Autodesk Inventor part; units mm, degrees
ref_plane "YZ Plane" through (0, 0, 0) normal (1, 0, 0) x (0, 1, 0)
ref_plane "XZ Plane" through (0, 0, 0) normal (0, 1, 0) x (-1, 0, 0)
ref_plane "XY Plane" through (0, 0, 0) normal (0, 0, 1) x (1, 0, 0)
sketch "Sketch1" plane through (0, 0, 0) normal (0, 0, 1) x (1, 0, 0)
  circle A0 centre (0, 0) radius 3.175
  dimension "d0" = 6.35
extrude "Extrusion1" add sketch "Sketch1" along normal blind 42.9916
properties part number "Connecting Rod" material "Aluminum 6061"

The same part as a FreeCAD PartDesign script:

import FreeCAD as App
import Part
import Sketcher
Q = App.Units.Quantity

doc = App.newDocument("Part")
body = doc.addObject("PartDesign::Body", "Body")

# Sketch on XY plane
sketch1 = body.newObject("Sketcher::SketchObject", "Sketch")
sketch1.AttachmentSupport = (doc.getObject("XY_Plane"), [""])
sketch1.MapMode = "FlatFace"
sketch1.addGeometry(Part.Circle(App.Vector(0, 0, 0), App.Vector(0, 0, 1), 3.2), False)
sketch1.addConstraint([
    Sketcher.Constraint("Coincident", 0, 3, -1, 1),
    Sketcher.Constraint("Diameter", 0, Q("0.25 in")),
])
pad1 = body.newObject("PartDesign::Pad", "Pad")
pad1.Profile = sketch1
pad1.Length = 42.9916

doc.recompute()
